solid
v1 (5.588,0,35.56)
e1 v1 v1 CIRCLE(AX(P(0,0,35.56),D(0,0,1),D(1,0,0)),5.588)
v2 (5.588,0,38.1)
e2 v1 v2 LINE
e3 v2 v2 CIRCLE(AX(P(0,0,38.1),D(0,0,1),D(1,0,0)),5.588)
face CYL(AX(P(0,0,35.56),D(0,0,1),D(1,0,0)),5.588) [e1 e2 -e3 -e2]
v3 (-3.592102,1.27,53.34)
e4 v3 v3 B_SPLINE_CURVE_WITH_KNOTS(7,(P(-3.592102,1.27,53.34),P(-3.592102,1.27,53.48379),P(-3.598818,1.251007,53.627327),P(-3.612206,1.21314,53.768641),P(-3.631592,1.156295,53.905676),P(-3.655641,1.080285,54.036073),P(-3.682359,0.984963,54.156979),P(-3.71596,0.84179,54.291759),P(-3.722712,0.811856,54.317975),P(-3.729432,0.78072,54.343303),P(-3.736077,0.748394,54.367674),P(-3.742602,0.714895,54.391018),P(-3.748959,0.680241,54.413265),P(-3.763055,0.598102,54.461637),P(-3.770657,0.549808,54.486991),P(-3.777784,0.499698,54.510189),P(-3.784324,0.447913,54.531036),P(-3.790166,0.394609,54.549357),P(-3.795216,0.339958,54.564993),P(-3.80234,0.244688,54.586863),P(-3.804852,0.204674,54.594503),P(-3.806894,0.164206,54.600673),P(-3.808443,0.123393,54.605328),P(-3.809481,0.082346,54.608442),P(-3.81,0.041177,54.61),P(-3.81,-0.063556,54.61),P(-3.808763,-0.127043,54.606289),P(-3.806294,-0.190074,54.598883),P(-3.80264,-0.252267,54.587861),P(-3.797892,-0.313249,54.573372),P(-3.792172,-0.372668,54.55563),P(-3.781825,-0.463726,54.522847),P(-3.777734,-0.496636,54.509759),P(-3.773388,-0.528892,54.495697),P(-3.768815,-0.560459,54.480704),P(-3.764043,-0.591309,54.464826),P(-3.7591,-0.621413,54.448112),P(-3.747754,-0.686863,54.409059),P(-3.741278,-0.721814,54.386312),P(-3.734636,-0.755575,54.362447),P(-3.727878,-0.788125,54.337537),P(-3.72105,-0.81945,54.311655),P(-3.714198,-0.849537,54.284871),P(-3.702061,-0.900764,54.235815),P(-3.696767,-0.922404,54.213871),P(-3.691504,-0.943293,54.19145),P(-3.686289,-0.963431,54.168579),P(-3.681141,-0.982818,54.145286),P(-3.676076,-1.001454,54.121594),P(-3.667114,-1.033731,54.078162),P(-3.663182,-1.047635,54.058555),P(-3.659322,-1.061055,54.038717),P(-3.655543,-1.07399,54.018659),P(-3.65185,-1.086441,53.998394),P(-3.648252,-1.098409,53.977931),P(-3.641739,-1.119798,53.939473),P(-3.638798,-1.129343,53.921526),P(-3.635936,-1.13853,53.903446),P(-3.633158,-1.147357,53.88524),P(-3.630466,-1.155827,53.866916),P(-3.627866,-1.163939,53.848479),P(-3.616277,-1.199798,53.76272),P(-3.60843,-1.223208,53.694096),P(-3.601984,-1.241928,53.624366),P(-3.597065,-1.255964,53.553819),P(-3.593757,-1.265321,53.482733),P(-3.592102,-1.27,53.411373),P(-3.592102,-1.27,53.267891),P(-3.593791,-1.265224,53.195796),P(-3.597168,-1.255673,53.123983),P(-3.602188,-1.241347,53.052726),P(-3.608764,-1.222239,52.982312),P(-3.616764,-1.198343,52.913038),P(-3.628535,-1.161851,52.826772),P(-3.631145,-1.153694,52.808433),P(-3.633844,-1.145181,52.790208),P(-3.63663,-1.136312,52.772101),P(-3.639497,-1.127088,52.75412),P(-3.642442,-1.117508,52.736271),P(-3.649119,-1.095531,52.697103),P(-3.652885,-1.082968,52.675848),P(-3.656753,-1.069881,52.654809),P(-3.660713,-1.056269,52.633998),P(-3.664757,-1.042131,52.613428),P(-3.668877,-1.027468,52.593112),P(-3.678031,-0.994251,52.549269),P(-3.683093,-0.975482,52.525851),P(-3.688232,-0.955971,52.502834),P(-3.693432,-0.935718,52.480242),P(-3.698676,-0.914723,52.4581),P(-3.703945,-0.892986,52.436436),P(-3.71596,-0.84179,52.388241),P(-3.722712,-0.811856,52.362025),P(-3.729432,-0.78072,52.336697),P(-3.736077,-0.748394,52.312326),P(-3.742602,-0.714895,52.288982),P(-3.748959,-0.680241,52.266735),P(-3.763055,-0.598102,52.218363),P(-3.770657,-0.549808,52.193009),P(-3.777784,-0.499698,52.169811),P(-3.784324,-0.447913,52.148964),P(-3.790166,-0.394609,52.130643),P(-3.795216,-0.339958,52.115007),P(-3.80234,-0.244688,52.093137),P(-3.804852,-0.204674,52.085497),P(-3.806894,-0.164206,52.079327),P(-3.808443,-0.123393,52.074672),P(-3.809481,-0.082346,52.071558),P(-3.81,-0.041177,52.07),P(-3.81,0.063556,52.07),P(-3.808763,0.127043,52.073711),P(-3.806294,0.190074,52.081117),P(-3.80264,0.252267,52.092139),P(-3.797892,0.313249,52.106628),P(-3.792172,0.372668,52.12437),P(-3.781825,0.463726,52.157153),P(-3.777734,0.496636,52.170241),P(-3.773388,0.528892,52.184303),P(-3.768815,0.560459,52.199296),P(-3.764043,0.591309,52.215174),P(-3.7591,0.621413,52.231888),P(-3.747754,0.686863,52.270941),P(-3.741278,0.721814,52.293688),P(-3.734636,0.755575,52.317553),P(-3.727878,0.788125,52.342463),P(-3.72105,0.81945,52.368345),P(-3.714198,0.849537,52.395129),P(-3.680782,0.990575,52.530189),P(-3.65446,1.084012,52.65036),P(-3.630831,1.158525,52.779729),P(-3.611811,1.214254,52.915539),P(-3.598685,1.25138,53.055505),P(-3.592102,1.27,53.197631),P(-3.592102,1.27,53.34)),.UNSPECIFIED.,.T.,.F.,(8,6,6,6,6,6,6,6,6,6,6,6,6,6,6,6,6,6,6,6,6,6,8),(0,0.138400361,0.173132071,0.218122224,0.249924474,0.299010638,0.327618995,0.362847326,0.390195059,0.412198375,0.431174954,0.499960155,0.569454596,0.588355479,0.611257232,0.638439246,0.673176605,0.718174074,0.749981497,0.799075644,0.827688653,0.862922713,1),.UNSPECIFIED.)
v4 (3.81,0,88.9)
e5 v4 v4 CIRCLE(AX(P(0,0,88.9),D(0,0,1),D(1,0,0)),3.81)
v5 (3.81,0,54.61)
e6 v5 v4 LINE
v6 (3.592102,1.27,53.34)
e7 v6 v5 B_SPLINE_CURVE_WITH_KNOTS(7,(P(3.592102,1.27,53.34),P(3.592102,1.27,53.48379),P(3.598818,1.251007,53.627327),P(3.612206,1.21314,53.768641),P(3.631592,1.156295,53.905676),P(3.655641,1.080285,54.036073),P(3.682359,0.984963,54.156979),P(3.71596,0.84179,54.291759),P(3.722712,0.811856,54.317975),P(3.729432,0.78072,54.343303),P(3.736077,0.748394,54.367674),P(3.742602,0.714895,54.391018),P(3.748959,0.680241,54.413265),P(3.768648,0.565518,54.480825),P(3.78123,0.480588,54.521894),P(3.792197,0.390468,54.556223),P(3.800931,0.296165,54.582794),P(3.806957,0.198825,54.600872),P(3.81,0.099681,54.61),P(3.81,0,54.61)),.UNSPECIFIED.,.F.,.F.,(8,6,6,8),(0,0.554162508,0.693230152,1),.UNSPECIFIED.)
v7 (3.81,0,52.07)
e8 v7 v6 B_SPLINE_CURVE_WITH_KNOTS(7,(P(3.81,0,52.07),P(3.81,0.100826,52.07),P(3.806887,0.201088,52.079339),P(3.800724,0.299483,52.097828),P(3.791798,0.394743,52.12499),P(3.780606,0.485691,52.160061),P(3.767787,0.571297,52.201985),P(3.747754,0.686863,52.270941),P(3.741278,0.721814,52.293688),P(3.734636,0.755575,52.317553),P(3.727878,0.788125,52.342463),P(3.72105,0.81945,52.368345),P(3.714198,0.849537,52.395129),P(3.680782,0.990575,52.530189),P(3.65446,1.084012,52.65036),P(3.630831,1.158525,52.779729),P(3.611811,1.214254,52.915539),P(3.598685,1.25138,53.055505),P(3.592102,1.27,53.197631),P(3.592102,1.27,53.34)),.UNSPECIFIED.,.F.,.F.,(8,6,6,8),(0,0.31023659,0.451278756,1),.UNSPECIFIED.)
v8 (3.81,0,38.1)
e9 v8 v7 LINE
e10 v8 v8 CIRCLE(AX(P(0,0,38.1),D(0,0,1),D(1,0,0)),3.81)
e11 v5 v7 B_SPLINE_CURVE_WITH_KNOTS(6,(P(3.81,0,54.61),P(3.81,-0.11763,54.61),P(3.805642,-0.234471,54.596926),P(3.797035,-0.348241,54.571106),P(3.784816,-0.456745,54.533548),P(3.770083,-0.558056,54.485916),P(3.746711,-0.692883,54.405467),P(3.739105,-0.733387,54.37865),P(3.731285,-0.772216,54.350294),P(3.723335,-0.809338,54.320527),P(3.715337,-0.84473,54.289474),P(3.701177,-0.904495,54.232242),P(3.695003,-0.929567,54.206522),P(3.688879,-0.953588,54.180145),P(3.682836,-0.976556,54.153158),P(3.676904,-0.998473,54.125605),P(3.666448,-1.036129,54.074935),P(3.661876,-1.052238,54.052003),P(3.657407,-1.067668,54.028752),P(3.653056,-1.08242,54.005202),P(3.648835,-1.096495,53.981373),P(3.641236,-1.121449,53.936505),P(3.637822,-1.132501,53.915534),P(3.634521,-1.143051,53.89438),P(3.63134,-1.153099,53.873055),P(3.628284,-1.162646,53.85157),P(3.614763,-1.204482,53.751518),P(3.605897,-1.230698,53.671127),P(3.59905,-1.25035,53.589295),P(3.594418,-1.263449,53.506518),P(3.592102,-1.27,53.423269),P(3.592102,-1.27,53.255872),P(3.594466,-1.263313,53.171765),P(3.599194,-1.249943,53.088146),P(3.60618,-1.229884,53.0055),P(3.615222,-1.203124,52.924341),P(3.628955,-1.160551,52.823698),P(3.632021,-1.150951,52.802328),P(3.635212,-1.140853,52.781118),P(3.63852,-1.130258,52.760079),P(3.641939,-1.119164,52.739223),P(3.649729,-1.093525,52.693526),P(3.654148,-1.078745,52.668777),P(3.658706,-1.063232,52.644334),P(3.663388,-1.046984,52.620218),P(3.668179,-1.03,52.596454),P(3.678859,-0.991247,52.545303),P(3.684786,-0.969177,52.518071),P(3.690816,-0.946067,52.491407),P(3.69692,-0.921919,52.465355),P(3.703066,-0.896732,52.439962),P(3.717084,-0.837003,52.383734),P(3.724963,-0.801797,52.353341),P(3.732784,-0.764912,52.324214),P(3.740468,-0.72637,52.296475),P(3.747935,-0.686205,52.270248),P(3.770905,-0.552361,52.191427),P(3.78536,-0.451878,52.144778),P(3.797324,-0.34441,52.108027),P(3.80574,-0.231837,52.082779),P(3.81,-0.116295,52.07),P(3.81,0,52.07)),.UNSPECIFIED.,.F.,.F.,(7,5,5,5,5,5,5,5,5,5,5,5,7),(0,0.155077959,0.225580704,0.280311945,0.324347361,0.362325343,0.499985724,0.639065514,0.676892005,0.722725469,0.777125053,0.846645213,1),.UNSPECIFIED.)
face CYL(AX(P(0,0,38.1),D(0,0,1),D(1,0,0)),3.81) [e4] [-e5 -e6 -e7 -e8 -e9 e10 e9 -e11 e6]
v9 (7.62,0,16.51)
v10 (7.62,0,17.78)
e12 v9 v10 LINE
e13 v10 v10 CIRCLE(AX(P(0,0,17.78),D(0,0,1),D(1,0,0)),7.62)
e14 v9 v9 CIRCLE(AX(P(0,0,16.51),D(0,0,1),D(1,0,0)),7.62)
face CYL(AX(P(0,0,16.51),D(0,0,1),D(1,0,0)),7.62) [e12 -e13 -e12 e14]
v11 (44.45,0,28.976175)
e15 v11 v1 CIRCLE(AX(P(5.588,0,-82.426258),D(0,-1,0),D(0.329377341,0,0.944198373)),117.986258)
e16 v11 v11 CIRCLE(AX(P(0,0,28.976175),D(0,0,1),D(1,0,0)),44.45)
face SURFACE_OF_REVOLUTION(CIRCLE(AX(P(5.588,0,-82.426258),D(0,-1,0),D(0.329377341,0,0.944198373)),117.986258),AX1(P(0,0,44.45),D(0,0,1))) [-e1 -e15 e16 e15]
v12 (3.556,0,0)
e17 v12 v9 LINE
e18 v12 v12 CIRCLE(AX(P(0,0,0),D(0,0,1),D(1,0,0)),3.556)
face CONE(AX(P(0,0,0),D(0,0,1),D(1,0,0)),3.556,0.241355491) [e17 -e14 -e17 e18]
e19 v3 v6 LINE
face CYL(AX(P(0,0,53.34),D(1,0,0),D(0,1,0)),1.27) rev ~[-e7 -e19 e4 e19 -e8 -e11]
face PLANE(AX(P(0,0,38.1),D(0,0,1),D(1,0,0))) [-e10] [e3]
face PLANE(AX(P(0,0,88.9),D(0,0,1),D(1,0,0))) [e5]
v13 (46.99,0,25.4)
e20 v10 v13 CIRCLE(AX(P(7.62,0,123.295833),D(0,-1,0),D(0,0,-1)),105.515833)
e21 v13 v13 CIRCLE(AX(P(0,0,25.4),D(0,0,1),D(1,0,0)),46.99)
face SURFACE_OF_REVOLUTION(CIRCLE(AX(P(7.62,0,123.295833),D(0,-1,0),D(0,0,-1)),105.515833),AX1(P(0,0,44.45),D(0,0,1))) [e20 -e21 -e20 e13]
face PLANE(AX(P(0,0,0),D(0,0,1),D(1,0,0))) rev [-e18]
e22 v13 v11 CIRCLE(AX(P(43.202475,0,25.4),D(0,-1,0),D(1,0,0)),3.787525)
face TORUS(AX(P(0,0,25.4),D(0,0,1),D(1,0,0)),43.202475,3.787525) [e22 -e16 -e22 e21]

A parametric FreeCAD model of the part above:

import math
import FreeCAD as App
import Part
import Sketcher
from FreeCAD import Vector
Q = App.Units.Quantity

doc = App.newDocument("Part")
body = doc.addObject("PartDesign::Body", "Body")

sketch1 = doc.addObject("Sketcher::SketchObject", "Sketch")
body.addObject(sketch1)
sketch1.AttachmentSupport = (doc.XZ_Plane, [""])
sketch1.MapMode = "FlatFace"
sketch1.addGeometry(Part.LineSegment(Vector(0, 88.9, 0), Vector(0, 0, 0)), False)
sketch1.addGeometry(Part.LineSegment(Vector(0, 0, 0), Vector(3.6, 0, 0)), False)
sketch1.addGeometry(Part.LineSegment(Vector(3.6, 0, 0), Vector(7.6, 16.5, 0)), False)
sketch1.addGeometry(Part.LineSegment(Vector(7.6, 16.5, 0), Vector(7.6, 17.8, 0)), False)
sketch1.addGeometry(Part.ArcOfCircle(Part.Circle(Vector(7.6, 123.3, 0), Vector(0, 0, 1), 105.5), math.radians(-90), math.radians(-68)), False)
sketch1.addGeometry(Part.ArcOfCircle(Part.Circle(Vector(43.2, 25.4, 0), Vector(0, 0, 1), 3.8), math.radians(0), math.radians(71)), False)
sketch1.addGeometry(Part.ArcOfCircle(Part.Circle(Vector(5.6, -82.4, 0), Vector(0, 0, 1), 118), math.radians(70.77), math.radians(90)), False)
sketch1.addGeometry(Part.LineSegment(Vector(5.6, 35.6, 0), Vector(5.6, 38.1, 0)), False)
sketch1.addGeometry(Part.LineSegment(Vector(5.6, 38.1, 0), Vector(3.8, 38.1, 0)), False)
sketch1.addGeometry(Part.LineSegment(Vector(3.8, 38.1, 0), Vector(3.8, 88.9, 0)), False)
sketch1.addGeometry(Part.LineSegment(Vector(3.8, 88.9, 0), Vector(0, 88.9, 0)), False)
sketch1.addConstraint(Sketcher.Constraint("Coincident", 0, 2, 1, 1))
sketch1.addConstraint(Sketcher.Constraint("Coincident", 1, 2, 2, 1))
sketch1.addConstraint(Sketcher.Constraint("Coincident", 2, 2, 3, 1))
sketch1.addConstraint(Sketcher.Constraint("Coincident", 3, 2, 4, 1))
sketch1.addConstraint(Sketcher.Constraint("Coincident", 4, 2, 5, 1))
sketch1.addConstraint(Sketcher.Constraint("Tangent", 5, 2, 6, 1))
sketch1.addConstraint(Sketcher.Constraint("Coincident", 6, 2, 7, 1))
sketch1.addConstraint(Sketcher.Constraint("Coincident", 7, 2, 8, 1))
sketch1.addConstraint(Sketcher.Constraint("Coincident", 8, 2, 9, 1))
sketch1.addConstraint(Sketcher.Constraint("Coincident", 9, 2, 10, 1))
sketch1.addConstraint(Sketcher.Constraint("Coincident", 10, 2, 0, 1))
sketch1.addConstraint(Sketcher.Constraint("Vertical", 0))
sketch1.addConstraint(Sketcher.Constraint("Horizontal", 1))
sketch1.addConstraint(Sketcher.Constraint("Vertical", 3))
sketch1.addConstraint(Sketcher.Constraint("Vertical", 7))
sketch1.addConstraint(Sketcher.Constraint("Horizontal", 8))
sketch1.addConstraint(Sketcher.Constraint("Vertical", 9))
sketch1.addConstraint(Sketcher.Constraint("Horizontal", 10))
sketch1.addConstraint(Sketcher.Constraint("Coincident", 0, 2, -1, 1))
sketch1.addConstraint(Sketcher.Constraint("Horizontal", 5, 3, 4, 2))
sketch1.addConstraint(Sketcher.Constraint("Vertical", 4, 3, 2, 2))
sketch1.addConstraint(Sketcher.Constraint("DistanceY", 9, 1, 9, 2, Q("2 in")))
sketch1.addConstraint(Sketcher.Constraint("DistanceY", 0, 2, 0, 1, Q("3.5 in")))
sketch1.addConstraint(Sketcher.Constraint("DistanceY", 7, 1, 7, 2, Q("0.1 in")))
sketch1.addConstraint(Sketcher.Constraint("DistanceY", -1, 1, 5, 3, Q("1 in")))
sketch1.addConstraint(Sketcher.Constraint("DistanceX", 1, 1, 1, 2, Q("0.14 in")))
sketch1.addConstraint(Sketcher.Constraint("DistanceX", 8, 2, 8, 1, Q("0.07 in")))
sketch1.addConstraint(Sketcher.Constraint("DistanceX", 10, 2, 10, 1, Q("0.15 in")))
sketch1.addConstraint(Sketcher.Constraint("DistanceY", 3, 1, 3, 2, Q("0.05 in")))
sketch1.addConstraint(Sketcher.Constraint("DistanceX", -1, 1, 4, 3, Q("0.3 in")))
sketch1.addConstraint(Sketcher.Constraint("DistanceY", -1, 1, 3, 2, Q("0.7 in")))
sketch1.addConstraint(Sketcher.Constraint("DistanceX", 5, 2, 4, 2, Q("0.1 in")))
sketch1.addConstraint(Sketcher.Constraint("DistanceX", -1, 1, 6, 3, Q("0.22 in")))
sketch1.addConstraint(Sketcher.Constraint("DistanceX", -1, 1, 5, 2, Q("1.75 in")))
revolution = doc.addObject("PartDesign::Revolution", "Revolution")
body.addObject(revolution)
revolution.Profile = sketch1
revolution.ReferenceAxis = (sketch1, ["V_Axis"])
revolution.Angle = 360

sketch2 = doc.addObject("Sketcher::SketchObject", "Sketch001")
body.addObject(sketch2)
sketch2.AttachmentSupport = (doc.YZ_Plane, [""])
sketch2.MapMode = "FlatFace"
sketch2.addGeometry(Part.Circle(Vector(0, 53.3, 0), Vector(0, 0, 1), 1.3), False)
sketch2.addConstraint(Sketcher.Constraint("PointOnObject", 0, 3, -2))
sketch2.addConstraint(Sketcher.Constraint("Diameter", 0, Q("0.1 in")))
sketch2.addConstraint(Sketcher.Constraint("DistanceY", -1, 1, 0, 3, Q("2.1 in")))
pocket1 = doc.addObject("PartDesign::Pocket", "Pocket")
body.addObject(pocket1)
pocket1.Profile = sketch2
pocket1.Length = Q("1 in")
pocket1.Midplane = True

doc.recompute()
